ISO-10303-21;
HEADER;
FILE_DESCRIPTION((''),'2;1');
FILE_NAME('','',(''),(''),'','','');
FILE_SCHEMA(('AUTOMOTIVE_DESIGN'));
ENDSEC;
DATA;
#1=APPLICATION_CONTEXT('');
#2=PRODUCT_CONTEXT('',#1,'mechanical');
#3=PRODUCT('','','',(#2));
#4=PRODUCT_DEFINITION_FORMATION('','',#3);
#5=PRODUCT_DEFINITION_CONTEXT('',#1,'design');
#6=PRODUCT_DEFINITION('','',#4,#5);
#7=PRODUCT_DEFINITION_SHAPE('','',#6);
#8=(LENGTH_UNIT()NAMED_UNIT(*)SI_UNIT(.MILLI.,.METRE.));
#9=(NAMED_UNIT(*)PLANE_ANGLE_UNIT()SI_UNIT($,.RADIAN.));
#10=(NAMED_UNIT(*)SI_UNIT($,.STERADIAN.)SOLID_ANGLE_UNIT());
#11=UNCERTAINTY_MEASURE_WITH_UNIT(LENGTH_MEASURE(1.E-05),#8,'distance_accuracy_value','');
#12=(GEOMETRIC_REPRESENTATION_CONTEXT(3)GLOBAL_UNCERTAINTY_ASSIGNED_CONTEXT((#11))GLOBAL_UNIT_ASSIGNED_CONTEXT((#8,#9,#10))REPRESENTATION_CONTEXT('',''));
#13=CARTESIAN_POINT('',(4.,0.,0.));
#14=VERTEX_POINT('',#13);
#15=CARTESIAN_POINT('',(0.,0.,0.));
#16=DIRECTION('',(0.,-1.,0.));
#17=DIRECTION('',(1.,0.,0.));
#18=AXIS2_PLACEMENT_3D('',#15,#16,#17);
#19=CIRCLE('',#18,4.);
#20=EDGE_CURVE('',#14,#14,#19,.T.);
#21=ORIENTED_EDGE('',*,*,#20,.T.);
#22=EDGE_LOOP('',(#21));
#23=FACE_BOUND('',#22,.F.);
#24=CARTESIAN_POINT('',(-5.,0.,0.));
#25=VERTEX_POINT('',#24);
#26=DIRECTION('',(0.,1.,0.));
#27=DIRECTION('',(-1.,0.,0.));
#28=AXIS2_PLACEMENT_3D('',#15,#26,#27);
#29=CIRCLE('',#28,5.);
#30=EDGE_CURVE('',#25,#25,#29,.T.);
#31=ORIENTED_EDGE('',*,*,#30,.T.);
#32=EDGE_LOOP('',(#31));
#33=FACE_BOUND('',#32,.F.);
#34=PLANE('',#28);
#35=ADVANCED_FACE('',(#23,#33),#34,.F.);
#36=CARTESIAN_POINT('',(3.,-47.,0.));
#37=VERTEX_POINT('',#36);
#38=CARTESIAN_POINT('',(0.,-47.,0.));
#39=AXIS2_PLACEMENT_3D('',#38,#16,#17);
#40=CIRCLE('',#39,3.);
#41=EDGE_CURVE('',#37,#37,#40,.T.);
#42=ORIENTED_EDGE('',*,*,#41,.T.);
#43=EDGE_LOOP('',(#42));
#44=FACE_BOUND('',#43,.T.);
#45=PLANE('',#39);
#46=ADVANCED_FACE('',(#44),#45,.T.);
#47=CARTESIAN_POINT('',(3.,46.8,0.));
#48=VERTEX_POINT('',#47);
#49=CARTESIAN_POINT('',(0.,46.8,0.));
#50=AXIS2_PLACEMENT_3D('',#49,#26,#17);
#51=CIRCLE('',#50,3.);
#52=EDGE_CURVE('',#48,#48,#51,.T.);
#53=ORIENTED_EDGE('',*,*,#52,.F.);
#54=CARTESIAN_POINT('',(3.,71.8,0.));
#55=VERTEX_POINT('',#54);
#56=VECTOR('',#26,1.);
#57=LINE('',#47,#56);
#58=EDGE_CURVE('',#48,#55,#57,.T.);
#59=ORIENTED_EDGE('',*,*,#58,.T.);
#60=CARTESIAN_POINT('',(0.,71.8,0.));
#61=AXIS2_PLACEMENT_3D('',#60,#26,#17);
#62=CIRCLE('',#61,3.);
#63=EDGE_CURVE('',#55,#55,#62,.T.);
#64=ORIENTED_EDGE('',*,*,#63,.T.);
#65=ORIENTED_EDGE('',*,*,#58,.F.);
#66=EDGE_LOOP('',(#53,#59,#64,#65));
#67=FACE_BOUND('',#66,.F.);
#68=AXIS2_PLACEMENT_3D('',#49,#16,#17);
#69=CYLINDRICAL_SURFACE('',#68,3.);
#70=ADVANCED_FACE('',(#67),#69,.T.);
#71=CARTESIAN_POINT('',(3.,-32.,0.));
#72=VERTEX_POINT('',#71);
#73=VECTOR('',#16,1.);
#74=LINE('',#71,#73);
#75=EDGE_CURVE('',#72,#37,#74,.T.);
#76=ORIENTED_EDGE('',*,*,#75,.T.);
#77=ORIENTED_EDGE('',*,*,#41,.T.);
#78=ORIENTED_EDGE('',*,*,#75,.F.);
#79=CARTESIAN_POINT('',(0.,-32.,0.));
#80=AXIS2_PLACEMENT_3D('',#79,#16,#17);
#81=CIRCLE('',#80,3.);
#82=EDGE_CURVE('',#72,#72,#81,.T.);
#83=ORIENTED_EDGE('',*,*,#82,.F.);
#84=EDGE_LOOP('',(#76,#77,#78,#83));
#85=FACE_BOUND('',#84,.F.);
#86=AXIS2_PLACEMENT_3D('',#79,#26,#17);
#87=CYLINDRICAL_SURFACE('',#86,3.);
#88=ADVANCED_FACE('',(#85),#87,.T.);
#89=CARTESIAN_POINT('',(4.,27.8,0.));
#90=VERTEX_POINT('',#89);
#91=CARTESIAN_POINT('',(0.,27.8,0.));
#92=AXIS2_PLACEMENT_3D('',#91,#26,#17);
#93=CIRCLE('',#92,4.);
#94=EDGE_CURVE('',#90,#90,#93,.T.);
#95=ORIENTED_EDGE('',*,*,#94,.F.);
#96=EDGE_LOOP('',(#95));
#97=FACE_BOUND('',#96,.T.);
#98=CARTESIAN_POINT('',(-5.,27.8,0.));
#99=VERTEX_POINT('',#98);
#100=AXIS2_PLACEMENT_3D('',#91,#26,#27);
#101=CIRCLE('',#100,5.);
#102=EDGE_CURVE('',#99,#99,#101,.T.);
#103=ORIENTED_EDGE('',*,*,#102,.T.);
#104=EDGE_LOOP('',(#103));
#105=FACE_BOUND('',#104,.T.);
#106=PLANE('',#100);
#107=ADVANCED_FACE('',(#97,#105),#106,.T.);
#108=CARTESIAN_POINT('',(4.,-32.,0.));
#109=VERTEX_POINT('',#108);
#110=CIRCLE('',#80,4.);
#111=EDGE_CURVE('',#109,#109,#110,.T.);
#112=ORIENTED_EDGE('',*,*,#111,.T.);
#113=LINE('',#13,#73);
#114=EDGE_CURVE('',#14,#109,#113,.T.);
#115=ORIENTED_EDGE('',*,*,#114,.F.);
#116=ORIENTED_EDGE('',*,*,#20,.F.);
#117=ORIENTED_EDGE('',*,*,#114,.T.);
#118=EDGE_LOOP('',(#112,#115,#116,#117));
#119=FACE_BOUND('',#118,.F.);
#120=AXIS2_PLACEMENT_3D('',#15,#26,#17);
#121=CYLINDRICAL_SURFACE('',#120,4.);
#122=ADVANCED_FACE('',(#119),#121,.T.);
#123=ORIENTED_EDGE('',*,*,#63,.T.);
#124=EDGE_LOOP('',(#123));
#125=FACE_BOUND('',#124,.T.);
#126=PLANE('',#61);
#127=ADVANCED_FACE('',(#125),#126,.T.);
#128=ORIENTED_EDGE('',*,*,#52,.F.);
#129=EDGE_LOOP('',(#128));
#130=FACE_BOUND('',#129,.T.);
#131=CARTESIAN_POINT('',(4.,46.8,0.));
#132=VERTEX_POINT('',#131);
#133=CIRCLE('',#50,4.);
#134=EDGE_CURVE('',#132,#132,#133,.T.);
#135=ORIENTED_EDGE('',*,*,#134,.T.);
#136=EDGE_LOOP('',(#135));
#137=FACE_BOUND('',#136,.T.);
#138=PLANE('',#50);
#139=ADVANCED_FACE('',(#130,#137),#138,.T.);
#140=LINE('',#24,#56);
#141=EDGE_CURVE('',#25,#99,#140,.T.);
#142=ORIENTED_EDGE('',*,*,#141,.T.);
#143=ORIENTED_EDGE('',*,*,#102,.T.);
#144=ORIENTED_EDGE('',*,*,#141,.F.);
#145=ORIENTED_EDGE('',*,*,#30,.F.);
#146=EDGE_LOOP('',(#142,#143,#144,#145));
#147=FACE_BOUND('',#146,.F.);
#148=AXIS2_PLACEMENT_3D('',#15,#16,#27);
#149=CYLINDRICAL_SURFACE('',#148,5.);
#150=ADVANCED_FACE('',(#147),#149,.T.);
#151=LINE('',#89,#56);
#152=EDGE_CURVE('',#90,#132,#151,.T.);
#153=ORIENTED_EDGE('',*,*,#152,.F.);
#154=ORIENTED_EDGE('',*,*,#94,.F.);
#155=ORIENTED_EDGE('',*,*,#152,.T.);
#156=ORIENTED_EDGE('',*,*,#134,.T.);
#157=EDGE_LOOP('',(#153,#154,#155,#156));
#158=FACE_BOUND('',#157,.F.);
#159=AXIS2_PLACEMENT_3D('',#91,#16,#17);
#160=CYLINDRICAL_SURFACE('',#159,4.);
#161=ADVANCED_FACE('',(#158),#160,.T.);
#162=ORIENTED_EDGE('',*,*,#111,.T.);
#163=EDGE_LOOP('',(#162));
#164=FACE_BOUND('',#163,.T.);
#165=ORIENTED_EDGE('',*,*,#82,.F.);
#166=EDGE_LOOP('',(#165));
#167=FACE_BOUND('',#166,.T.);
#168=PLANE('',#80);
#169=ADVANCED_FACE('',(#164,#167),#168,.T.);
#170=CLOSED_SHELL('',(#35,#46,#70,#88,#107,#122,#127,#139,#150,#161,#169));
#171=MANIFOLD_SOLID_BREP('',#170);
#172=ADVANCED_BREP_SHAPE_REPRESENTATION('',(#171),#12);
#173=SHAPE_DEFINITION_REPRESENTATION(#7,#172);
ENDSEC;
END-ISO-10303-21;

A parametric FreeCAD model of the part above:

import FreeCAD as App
import Part
import Sketcher
from FreeCAD import Vector

doc = App.newDocument("Part")
body = doc.addObject("PartDesign::Body", "Body")

# Sketch on XZ plane
sketch1 = doc.addObject("Sketcher::SketchObject", "Sketch")
body.addObject(sketch1)
sketch1.AttachmentSupport = (doc.XZ_Plane, [""])
sketch1.MapMode = "FlatFace"
sketch1.addGeometry(Part.Circle(Vector(0, 0, 0), Vector(0, 0, 1), 5), False)
sketch1.addConstraint([
    Sketcher.Constraint("Coincident", 0, 3, -1, 1),
    Sketcher.Constraint("Diameter", 0, 10.0),
])
pad1 = doc.addObject("PartDesign::Pad", "Pad")
body.addObject(pad1)
pad1.Profile = sketch1
pad1.Length = 27.8
pad1.Reversed = True

# Sketch on XZ plane
sketch2 = doc.addObject("Sketcher::SketchObject", "Sketch001")
body.addObject(sketch2)
sketch2.AttachmentSupport = (doc.XZ_Plane, [""])
sketch2.MapMode = "FlatFace"
sketch2.AttachmentOffset = App.Placement(Vector(0, 0, -27.8), App.Rotation())
sketch2.addGeometry(Part.Circle(Vector(0, 0, 0), Vector(0, 0, 1), 4), False)
sketch2.addConstraint([
    Sketcher.Constraint("Coincident", 0, 3, -1, 1),
    Sketcher.Constraint("Diameter", 0, 8.0),
])
pad2 = doc.addObject("PartDesign::Pad", "Pad001")
body.addObject(pad2)
pad2.Profile = sketch2
pad2.Length = 19
pad2.Reversed = True

# Sketch on XZ plane
sketch3 = doc.addObject("Sketcher::SketchObject", "Sketch002")
body.addObject(sketch3)
sketch3.AttachmentSupport = (doc.XZ_Plane, [""])
sketch3.MapMode = "FlatFace"
sketch3.AttachmentOffset = App.Placement(Vector(0, 0, -46.8), App.Rotation())
sketch3.addGeometry(Part.Circle(Vector(0, 0, 0), Vector(0, 0, 1), 3), False)
sketch3.addConstraint([
    Sketcher.Constraint("Coincident", 0, 3, -1, 1),
    Sketcher.Constraint("Diameter", 0, 6.0),
])
pad3 = doc.addObject("PartDesign::Pad", "Pad002")
body.addObject(pad3)
pad3.Profile = sketch3
pad3.Length = 25
pad3.Reversed = True

# Sketch on XZ plane
sketch4 = doc.addObject("Sketcher::SketchObject", "Sketch003")
body.addObject(sketch4)
sketch4.AttachmentSupport = (doc.XZ_Plane, [""])
sketch4.MapMode = "FlatFace"
sketch4.addGeometry(Part.Circle(Vector(0, 0, 0), Vector(0, 0, 1), 4), False)
sketch4.addConstraint([
    Sketcher.Constraint("Coincident", 0, 3, -1, 1),
    Sketcher.Constraint("Diameter", 0, 8.0),
])
pad4 = doc.addObject("PartDesign::Pad", "Pad003")
body.addObject(pad4)
pad4.Profile = sketch4
pad4.Length = 32

# Sketch on XZ plane
sketch5 = doc.addObject("Sketcher::SketchObject", "Sketch004")
body.addObject(sketch5)
sketch5.AttachmentSupport = (doc.XZ_Plane, [""])
sketch5.MapMode = "FlatFace"
sketch5.AttachmentOffset = App.Placement(Vector(0, 0, 32), App.Rotation())
sketch5.addGeometry(Part.Circle(Vector(0, 0, 0), Vector(0, 0, 1), 3), False)
sketch5.addConstraint([
    Sketcher.Constraint("Coincident", 0, 3, -1, 1),
    Sketcher.Constraint("Diameter", 0, 6.0),
])
pad5 = doc.addObject("PartDesign::Pad", "Pad004")
body.addObject(pad5)
pad5.Profile = sketch5
pad5.Length = 15

doc.recompute()
